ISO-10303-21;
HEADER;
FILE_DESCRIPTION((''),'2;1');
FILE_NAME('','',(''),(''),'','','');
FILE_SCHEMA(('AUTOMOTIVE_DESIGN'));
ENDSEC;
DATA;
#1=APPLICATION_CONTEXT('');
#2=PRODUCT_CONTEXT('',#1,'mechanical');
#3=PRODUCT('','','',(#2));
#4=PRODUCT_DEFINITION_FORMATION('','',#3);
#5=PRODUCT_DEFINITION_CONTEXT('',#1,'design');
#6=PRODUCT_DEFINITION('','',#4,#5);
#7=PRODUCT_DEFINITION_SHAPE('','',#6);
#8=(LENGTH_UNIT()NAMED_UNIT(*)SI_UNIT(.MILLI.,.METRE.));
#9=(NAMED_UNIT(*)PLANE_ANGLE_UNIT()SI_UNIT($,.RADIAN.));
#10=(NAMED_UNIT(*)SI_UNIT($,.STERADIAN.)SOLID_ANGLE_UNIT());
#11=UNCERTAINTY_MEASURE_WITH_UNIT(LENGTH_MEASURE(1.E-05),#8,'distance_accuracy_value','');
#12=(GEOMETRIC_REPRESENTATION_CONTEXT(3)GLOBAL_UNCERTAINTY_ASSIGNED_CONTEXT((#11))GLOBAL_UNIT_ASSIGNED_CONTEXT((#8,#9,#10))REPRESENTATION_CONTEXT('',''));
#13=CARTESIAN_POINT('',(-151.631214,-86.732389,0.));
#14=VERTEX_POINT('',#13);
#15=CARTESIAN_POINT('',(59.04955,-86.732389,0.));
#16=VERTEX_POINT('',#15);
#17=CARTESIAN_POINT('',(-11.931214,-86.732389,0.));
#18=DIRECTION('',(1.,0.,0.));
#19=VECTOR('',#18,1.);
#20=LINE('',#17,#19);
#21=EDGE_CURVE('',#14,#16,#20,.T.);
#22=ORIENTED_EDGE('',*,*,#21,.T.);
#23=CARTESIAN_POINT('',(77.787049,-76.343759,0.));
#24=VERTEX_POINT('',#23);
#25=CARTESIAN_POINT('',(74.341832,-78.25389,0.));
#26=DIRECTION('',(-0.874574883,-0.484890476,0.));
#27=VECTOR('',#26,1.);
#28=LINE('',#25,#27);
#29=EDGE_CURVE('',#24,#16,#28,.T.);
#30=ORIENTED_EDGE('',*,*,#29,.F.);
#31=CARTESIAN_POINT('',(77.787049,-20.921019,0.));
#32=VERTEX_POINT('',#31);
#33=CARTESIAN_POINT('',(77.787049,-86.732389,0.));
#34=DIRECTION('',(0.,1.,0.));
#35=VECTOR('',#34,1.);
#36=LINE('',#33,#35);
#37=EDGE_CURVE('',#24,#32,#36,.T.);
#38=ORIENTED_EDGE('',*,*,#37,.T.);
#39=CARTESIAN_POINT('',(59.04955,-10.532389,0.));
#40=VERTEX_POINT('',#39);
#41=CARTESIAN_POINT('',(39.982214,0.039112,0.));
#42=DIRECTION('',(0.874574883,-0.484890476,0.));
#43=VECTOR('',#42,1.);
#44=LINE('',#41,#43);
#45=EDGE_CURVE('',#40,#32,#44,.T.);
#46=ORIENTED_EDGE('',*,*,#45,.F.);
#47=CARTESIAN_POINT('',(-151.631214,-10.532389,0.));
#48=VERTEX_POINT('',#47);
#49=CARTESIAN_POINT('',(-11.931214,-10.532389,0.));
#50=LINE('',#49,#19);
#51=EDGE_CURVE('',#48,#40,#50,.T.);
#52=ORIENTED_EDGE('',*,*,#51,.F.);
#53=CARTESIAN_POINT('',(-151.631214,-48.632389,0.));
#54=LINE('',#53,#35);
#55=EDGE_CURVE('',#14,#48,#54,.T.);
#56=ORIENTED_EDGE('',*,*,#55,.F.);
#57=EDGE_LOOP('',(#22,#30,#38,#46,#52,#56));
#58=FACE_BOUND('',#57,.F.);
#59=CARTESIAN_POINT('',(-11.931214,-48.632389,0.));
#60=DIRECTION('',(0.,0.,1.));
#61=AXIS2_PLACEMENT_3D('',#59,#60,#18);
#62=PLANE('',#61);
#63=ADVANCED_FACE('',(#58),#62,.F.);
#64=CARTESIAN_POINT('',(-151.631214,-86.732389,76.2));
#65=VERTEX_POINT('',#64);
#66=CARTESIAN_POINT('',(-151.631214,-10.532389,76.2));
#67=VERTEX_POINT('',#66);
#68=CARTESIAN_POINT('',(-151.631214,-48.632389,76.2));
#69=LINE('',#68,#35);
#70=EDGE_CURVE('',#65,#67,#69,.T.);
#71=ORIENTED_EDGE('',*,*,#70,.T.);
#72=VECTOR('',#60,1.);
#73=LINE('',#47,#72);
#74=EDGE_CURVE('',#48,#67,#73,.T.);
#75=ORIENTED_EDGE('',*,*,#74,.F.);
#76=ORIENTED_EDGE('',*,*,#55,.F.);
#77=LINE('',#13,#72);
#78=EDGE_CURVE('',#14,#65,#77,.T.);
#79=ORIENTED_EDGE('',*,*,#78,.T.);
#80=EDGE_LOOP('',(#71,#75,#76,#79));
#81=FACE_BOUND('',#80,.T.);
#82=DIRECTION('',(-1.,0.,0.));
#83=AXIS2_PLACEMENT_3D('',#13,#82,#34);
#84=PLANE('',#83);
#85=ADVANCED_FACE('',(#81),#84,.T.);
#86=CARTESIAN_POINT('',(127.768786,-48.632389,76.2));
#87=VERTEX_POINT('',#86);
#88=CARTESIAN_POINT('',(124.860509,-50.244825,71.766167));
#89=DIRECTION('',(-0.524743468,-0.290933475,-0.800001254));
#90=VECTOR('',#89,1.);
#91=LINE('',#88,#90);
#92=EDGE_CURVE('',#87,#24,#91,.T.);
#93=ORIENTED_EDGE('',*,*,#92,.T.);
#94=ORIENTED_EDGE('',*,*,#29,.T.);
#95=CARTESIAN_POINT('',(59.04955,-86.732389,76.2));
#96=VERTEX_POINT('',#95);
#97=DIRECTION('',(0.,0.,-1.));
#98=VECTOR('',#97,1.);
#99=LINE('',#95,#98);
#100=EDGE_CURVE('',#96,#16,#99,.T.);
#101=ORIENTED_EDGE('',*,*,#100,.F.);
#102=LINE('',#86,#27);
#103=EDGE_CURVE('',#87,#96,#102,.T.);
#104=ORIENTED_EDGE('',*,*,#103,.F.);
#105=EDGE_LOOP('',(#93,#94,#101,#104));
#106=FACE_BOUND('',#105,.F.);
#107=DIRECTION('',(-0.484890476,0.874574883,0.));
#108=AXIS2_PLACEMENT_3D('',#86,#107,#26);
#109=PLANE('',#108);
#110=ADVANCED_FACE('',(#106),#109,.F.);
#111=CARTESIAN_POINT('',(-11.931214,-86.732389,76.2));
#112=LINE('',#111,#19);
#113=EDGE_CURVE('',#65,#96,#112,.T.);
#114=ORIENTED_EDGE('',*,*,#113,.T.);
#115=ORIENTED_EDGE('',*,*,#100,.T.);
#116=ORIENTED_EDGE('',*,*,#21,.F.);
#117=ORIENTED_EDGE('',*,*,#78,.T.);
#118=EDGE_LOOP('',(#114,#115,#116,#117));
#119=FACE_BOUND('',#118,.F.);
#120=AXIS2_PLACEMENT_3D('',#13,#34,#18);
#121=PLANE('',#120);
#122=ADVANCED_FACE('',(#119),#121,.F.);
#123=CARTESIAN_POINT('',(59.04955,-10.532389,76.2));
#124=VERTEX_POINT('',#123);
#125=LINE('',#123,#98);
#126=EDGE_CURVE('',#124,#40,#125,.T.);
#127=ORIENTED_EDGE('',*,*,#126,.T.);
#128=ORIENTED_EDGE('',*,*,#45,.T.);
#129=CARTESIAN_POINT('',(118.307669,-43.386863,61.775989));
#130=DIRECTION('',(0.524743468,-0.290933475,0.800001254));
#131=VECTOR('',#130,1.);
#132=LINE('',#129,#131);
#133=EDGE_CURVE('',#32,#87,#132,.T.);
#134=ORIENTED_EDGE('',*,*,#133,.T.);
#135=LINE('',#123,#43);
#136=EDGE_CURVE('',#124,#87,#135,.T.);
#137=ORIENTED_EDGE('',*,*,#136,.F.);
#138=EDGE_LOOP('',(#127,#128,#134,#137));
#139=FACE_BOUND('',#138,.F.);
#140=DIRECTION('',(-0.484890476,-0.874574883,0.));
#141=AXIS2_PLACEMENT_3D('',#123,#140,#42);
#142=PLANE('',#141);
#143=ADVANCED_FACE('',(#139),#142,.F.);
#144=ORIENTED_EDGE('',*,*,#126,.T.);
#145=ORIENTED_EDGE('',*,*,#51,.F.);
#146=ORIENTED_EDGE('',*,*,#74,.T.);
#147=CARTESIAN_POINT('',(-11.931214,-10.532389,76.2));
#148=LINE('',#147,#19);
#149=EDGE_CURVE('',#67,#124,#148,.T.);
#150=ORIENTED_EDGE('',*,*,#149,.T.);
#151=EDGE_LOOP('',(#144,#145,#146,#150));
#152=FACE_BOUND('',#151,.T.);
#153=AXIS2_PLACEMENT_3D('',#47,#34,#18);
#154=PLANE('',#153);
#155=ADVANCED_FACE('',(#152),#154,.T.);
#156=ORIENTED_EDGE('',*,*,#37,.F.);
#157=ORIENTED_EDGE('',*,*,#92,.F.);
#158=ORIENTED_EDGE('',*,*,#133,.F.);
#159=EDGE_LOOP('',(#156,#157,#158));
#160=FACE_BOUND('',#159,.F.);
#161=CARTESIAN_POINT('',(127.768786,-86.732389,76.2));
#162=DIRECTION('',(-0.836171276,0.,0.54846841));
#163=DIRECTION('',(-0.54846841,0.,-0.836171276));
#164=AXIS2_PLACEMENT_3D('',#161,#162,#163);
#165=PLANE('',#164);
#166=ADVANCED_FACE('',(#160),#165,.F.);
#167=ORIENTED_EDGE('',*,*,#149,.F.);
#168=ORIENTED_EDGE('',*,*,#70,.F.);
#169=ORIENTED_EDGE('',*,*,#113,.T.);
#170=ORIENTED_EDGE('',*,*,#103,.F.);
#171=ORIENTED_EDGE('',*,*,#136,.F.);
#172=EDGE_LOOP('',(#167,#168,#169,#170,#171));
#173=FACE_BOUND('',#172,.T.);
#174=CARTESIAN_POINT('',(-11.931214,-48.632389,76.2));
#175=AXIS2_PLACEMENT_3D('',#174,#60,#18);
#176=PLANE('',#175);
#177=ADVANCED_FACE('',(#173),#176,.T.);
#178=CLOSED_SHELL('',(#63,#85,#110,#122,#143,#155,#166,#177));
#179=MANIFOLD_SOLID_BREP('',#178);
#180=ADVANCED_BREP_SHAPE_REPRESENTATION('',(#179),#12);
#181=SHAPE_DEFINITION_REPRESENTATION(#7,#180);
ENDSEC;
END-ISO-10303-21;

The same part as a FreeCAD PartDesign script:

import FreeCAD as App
import Part
import Sketcher

V = App.Vector
Q = App.Units.Quantity

doc = App.newDocument("Part")
body = doc.addObject("PartDesign::Body", "Body")

# Sketch on XY plane
sketch1 = body.newObject("Sketcher::SketchObject", "Sketch")
sketch1.AttachmentSupport = (doc.getObject("XY_Plane"), [""])
sketch1.MapMode = "FlatFace"
sketch1.addGeometry([
    Part.LineSegment(V(-152, -11, 0), V(-152, -87, 0)),
    Part.LineSegment(V(-152, -87, 0), V(128, -87, 0)),
    Part.LineSegment(V(128, -87, 0), V(128, -11, 0)),
    Part.LineSegment(V(128, -11, 0), V(-152, -11, 0)),
], False)
sketch1.addConstraint([
    Sketcher.Constraint("Coincident", 0, 2, 1, 1),
    Sketcher.Constraint("Coincident", 1, 2, 2, 1),
    Sketcher.Constraint("Coincident", 2, 2, 3, 1),
    Sketcher.Constraint("Coincident", 3, 2, 0, 1),
    Sketcher.Constraint("Vertical", 0),
    Sketcher.Constraint("Horizontal", 1),
    Sketcher.Constraint("Vertical", 2),
    Sketcher.Constraint("Horizontal", 3),
    Sketcher.Constraint("DistanceX", 1, 1, 1, 2, Q("11 in")),
    Sketcher.Constraint("DistanceY", 0, 2, 0, 1, Q("3 in")),
    Sketcher.Constraint("DistanceY", 0, 2, -1, 1, 86.732389),
    Sketcher.Constraint("DistanceX", 0, 2, -1, 1, 151.631214),
])
pad1 = body.newObject("PartDesign::Pad", "Pad")
pad1.Profile = sketch1
pad1.Length = Q("3 in")

# Sketch on XZ plane
sketch2 = body.newObject("Sketcher::SketchObject", "Sketch001")
sketch2.AttachmentSupport = (doc.getObject("XZ_Plane"), [""])
sketch2.MapMode = "FlatFace"
sketch2.AttachmentOffset = App.Placement(V(0, 0, 86.732389), App.Rotation())
sketch2.addGeometry([
    Part.LineSegment(V(128, 0, 0), V(128, 76, 0)),
    Part.LineSegment(V(128, 76, 0), V(78, 0, 0)),
    Part.LineSegment(V(78, 0, 0), V(128, 0, 0)),
], False)
sketch2.addConstraint([
    Sketcher.Constraint("Coincident", 0, 2, 1, 1),
    Sketcher.Constraint("Coincident", 1, 2, 2, 1),
    Sketcher.Constraint("Coincident", 2, 2, 0, 1),
    Sketcher.Constraint("Vertical", 0),
    Sketcher.Constraint("Horizontal", 2),
    Sketcher.Constraint("PointOnObject", 1, 2, -1),
    Sketcher.Constraint("DistanceY", 0, 1, 0, 2, Q("3 in")),
    Sketcher.Constraint("DistanceX", 2, 1, 2, 2, 49.981737),
    Sketcher.Constraint("DistanceX", -1, 1, 1, 2, 77.787049),
])
pocket1 = body.newObject("PartDesign::Pocket", "Pocket")
pocket1.Profile = sketch2
pocket1.Type = "ThroughAll"

# Sketch on XY plane
sketch3 = body.newObject("Sketcher::SketchObject", "Sketch002")
sketch3.AttachmentSupport = (doc.getObject("XY_Plane"), [""])
sketch3.MapMode = "FlatFace"
sketch3.AttachmentOffset = App.Placement(V(0, 0, 3 * 25.4), App.Rotation())
sketch3.addGeometry([
    Part.LineSegment(V(59, -11, 0), V(128, -49, 0)),  # 0
    Part.LineSegment(V(128, -49, 0), V(128, -11, 0)),  # 1
    Part.LineSegment(V(128, -11, 0), V(59, -11, 0)),  # 2
    Part.LineSegment(V(128, -49, 0), V(59, -87, 0)),  # 3
    Part.LineSegment(V(59, -87, 0), V(128, -87, 0)),  # 4
    Part.LineSegment(V(128, -87, 0), V(128, -49, 0)),  # 5
], False)
sketch3.addConstraint([
    Sketcher.Constraint("Coincident", 0, 2, 1, 1),
    Sketcher.Constraint("Coincident", 1, 2, 2, 1),
    Sketcher.Constraint("Coincident", 2, 2, 0, 1),
    Sketcher.Constraint("Coincident", 3, 2, 4, 1),
    Sketcher.Constraint("Coincident", 4, 2, 5, 1),
    Sketcher.Constraint("Coincident", 5, 2, 3, 1),
    Sketcher.Constraint("Vertical", 1),
    Sketcher.Constraint("Horizontal", 2),
    Sketcher.Constraint("Horizontal", 4),
    Sketcher.Constraint("Vertical", 5),
    Sketcher.Constraint("Coincident", 5, 2, 0, 2),
    Sketcher.Constraint("Vertical", 2, 2, 3, 2),
    Sketcher.Constraint("Equal", 1, 5),
    Sketcher.Constraint("DistanceY", 1, 1, 1, 2, Q("1.5 in")),
    Sketcher.Constraint("DistanceX", 2, 2, 2, 1, 68.719236),
    Sketcher.Constraint("DistanceY", 0, 2, -1, 1, 48.632389),
    Sketcher.Constraint("DistanceX", -1, 1, 2, 2, 59.04955),
])
pocket2 = body.newObject("PartDesign::Pocket", "Pocket001")
pocket2.Profile = sketch3
pocket2.Type = "ThroughAll"

doc.recompute()
